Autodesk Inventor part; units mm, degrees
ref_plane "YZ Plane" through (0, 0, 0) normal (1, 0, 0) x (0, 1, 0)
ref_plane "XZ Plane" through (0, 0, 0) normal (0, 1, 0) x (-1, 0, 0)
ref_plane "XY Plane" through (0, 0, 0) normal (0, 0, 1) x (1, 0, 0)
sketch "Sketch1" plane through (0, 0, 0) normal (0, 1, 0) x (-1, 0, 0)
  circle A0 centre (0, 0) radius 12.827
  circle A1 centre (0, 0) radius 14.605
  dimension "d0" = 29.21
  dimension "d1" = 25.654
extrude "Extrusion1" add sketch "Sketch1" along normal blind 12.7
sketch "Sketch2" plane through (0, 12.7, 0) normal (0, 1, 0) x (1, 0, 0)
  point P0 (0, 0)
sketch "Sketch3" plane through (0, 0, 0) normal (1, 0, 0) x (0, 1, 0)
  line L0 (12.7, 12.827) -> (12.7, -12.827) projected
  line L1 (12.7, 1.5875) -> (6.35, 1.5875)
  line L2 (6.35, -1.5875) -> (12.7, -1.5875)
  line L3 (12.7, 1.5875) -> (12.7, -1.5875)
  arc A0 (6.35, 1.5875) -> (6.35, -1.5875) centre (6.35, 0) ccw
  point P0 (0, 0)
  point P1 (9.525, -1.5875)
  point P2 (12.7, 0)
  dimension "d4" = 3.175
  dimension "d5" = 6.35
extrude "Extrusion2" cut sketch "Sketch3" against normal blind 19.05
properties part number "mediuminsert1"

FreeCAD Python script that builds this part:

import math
import FreeCAD as App
import Part
import Sketcher
Q = App.Units.Quantity

doc = App.newDocument("Part")
body = doc.addObject("PartDesign::Body", "Body")

# Sketch on XZ plane
sketch1 = body.newObject("Sketcher::SketchObject", "Sketch")
sketch1.AttachmentSupport = (doc.getObject("XZ_Plane"), [""])
sketch1.MapMode = "FlatFace"
sketch1.addGeometry(Part.Circle(App.Vector(0, 0, 0), App.Vector(0, 0, 1), 15), False)
sketch1.addGeometry(Part.Circle(App.Vector(0, 0, 0), App.Vector(0, 0, 1), 13), False)
sketch1.addConstraint(Sketcher.Constraint("Coincident", 0, 3, -1, 1))
sketch1.addConstraint(Sketcher.Constraint("Coincident", 1, 3, -1, 1))
sketch1.addConstraint(Sketcher.Constraint("Diameter", 0, Q("1.15 in")))
sketch1.addConstraint(Sketcher.Constraint("Diameter", 1, Q("1.01 in")))
pad1 = body.newObject("PartDesign::Pad", "Pad")
pad1.Profile = sketch1
pad1.Length = Q("0.5 in")
pad1.Reversed = True

# Sketch on YZ plane
sketch2 = body.newObject("Sketcher::SketchObject", "Sketch001")
sketch2.AttachmentSupport = (doc.getObject("YZ_Plane"), [""])
sketch2.MapMode = "FlatFace"
sketch2.addGeometry(Part.LineSegment(App.Vector(12.7, -1.6, 0), App.Vector(12.7, 1.6, 0)), False)
sketch2.addGeometry(Part.LineSegment(App.Vector(12.7, 1.6, 0), App.Vector(6.3, 1.6, 0)), False)
sketch2.addGeometry(Part.ArcOfCircle(Part.Circle(App.Vector(6.3, 0, 0), App.Vector(0, 0, 1), 1.6), math.radians(90), math.radians(270)), False)
sketch2.addGeometry(Part.LineSegment(App.Vector(6.3, -1.6, 0), App.Vector(12.7, -1.6, 0)), False)
sketch2.addConstraint(Sketcher.Constraint("Coincident", 0, 2, 1, 1))
sketch2.addConstraint(Sketcher.Constraint("Tangent", 1, 2, 2, 1))
sketch2.addConstraint(Sketcher.Constraint("Tangent", 2, 2, 3, 1))
sketch2.addConstraint(Sketcher.Constraint("Coincident", 3, 2, 0, 1))
sketch2.addConstraint(Sketcher.Constraint("Vertical", 0))
sketch2.addConstraint(Sketcher.Constraint("Horizontal", 1))
sketch2.addConstraint(Sketcher.Constraint("Horizontal", 3))
sketch2.addConstraint(Sketcher.Constraint("PointOnObject", 2, 3, -1))
sketch2.addConstraint(Sketcher.Constraint("Radius", 2, Q("0.0625 in")))
sketch2.addConstraint(Sketcher.Constraint("DistanceX", 1, 2, 1, 1, Q("0.25 in")))
sketch2.addConstraint(Sketcher.Constraint("DistanceX", -1, 1, 2, 3, Q("0.25 in")))
pocket1 = body.newObject("PartDesign::Pocket", "Pocket")
pocket1.Profile = sketch2
pocket1.Length = Q("0.75 in")

doc.recompute()
